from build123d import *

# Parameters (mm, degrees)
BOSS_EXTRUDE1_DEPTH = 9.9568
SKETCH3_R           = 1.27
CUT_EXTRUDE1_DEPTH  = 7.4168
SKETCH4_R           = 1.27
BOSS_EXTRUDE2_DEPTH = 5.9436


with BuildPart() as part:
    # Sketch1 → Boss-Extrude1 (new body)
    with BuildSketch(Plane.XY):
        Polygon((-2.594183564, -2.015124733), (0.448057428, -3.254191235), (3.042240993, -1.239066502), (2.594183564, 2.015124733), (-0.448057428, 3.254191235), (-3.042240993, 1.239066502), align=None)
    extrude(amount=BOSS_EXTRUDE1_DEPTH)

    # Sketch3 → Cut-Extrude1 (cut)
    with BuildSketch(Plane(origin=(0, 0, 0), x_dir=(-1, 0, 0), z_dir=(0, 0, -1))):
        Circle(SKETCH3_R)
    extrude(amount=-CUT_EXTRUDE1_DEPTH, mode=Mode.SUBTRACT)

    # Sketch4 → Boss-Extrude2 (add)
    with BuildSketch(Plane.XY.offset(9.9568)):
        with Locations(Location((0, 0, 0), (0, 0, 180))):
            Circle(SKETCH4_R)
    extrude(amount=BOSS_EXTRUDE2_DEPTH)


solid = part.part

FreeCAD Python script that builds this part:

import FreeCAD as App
import Part
import Sketcher

V = App.Vector
Q = App.Units.Quantity

doc = App.newDocument("Part")
body = doc.addObject("PartDesign::Body", "Body")

# Sketch on XY plane
sketch1 = body.newObject("Sketcher::SketchObject", "Sketch")
sketch1.AttachmentSupport = (doc.getObject("XY_Plane"), [""])
sketch1.MapMode = "FlatFace"
sketch1.addGeometry([
    Part.LineSegment(V(-2.6, -2, 0), V(0.4, -3.3, 0)),  # 0
    Part.LineSegment(V(0.4, -3.3, 0), V(3, -1.2, 0)),  # 1
    Part.LineSegment(V(3, -1.2, 0), V(2.6, 2, 0)),  # 2
    Part.LineSegment(V(2.6, 2, 0), V(-0.4, 3.3, 0)),  # 3
    Part.LineSegment(V(-0.4, 3.3, 0), V(-3, 1.2, 0)),  # 4
    Part.LineSegment(V(-3, 1.2, 0), V(-2.6, -2, 0)),  # 5
], False)
sketch1.addConstraint([
    Sketcher.Constraint("Coincident", 0, 2, 1, 1),
    Sketcher.Constraint("Coincident", 1, 2, 2, 1),
    Sketcher.Constraint("Coincident", 2, 2, 3, 1),
    Sketcher.Constraint("Coincident", 3, 2, 4, 1),
    Sketcher.Constraint("Coincident", 4, 2, 5, 1),
    Sketcher.Constraint("Coincident", 5, 2, 0, 1),
    Sketcher.Constraint("Symmetric", 0, 2, 3, 2, -1, 1),
    Sketcher.Constraint("Symmetric", 1, 2, 4, 2, -1, 1),
    Sketcher.Constraint("Symmetric", 2, 2, 5, 2, -1, 1),
    Sketcher.Constraint("Equal", 0, 1),
    Sketcher.Constraint("Equal", 1, 2),
    Sketcher.Constraint("DistanceY", 1, 2, 3, 2, Q("0.1768999 in")),
    Sketcher.Constraint("DistanceX", 3, 2, 1, 2, Q("3.490298 mm")),
    Sketcher.Constraint("DistanceY", 0, 2, -1, 1, Q("3.254191 mm")),
    Sketcher.Constraint("DistanceX", -1, 1, 1, 2, Q("3.042241 mm")),
])
pad1 = body.newObject("PartDesign::Pad", "Pad")
pad1.Profile = sketch1
pad1.Length = Q("0.392 in")

# Sketch on XY plane
sketch2 = body.newObject("Sketcher::SketchObject", "Sketch001")
sketch2.AttachmentSupport = (doc.getObject("XY_Plane"), [""])
sketch2.MapMode = "FlatFace"
sketch2.addGeometry(Part.Circle(V(0, 0, 0), V(0, 0, 1), 1.3), False)
sketch2.addConstraint([
    Sketcher.Constraint("Coincident", 0, 3, -1, 1),
    Sketcher.Constraint("Diameter", 0, Q("0.1 in")),
])
pocket1 = body.newObject("PartDesign::Pocket", "Pocket")
pocket1.Profile = sketch2
pocket1.Length = Q("0.292 in")
pocket1.Reversed = True

# Sketch on XY plane
sketch3 = body.newObject("Sketcher::SketchObject", "Sketch002")
sketch3.AttachmentSupport = (doc.getObject("XY_Plane"), [""])
sketch3.MapMode = "FlatFace"
sketch3.AttachmentOffset = App.Placement(V(0, 0, 0.392 * 25.4), App.Rotation())
sketch3.addGeometry(Part.Circle(V(0, 0, 0), V(0, 0, 1), 1.3), False)
sketch3.addConstraint([
    Sketcher.Constraint("Coincident", 0, 3, -1, 1),
    Sketcher.Constraint("Diameter", 0, Q("0.1 in")),
])
pad2 = body.newObject("PartDesign::Pad", "Pad001")
pad2.Profile = sketch3
pad2.Length = Q("0.234 in")

doc.recompute()
